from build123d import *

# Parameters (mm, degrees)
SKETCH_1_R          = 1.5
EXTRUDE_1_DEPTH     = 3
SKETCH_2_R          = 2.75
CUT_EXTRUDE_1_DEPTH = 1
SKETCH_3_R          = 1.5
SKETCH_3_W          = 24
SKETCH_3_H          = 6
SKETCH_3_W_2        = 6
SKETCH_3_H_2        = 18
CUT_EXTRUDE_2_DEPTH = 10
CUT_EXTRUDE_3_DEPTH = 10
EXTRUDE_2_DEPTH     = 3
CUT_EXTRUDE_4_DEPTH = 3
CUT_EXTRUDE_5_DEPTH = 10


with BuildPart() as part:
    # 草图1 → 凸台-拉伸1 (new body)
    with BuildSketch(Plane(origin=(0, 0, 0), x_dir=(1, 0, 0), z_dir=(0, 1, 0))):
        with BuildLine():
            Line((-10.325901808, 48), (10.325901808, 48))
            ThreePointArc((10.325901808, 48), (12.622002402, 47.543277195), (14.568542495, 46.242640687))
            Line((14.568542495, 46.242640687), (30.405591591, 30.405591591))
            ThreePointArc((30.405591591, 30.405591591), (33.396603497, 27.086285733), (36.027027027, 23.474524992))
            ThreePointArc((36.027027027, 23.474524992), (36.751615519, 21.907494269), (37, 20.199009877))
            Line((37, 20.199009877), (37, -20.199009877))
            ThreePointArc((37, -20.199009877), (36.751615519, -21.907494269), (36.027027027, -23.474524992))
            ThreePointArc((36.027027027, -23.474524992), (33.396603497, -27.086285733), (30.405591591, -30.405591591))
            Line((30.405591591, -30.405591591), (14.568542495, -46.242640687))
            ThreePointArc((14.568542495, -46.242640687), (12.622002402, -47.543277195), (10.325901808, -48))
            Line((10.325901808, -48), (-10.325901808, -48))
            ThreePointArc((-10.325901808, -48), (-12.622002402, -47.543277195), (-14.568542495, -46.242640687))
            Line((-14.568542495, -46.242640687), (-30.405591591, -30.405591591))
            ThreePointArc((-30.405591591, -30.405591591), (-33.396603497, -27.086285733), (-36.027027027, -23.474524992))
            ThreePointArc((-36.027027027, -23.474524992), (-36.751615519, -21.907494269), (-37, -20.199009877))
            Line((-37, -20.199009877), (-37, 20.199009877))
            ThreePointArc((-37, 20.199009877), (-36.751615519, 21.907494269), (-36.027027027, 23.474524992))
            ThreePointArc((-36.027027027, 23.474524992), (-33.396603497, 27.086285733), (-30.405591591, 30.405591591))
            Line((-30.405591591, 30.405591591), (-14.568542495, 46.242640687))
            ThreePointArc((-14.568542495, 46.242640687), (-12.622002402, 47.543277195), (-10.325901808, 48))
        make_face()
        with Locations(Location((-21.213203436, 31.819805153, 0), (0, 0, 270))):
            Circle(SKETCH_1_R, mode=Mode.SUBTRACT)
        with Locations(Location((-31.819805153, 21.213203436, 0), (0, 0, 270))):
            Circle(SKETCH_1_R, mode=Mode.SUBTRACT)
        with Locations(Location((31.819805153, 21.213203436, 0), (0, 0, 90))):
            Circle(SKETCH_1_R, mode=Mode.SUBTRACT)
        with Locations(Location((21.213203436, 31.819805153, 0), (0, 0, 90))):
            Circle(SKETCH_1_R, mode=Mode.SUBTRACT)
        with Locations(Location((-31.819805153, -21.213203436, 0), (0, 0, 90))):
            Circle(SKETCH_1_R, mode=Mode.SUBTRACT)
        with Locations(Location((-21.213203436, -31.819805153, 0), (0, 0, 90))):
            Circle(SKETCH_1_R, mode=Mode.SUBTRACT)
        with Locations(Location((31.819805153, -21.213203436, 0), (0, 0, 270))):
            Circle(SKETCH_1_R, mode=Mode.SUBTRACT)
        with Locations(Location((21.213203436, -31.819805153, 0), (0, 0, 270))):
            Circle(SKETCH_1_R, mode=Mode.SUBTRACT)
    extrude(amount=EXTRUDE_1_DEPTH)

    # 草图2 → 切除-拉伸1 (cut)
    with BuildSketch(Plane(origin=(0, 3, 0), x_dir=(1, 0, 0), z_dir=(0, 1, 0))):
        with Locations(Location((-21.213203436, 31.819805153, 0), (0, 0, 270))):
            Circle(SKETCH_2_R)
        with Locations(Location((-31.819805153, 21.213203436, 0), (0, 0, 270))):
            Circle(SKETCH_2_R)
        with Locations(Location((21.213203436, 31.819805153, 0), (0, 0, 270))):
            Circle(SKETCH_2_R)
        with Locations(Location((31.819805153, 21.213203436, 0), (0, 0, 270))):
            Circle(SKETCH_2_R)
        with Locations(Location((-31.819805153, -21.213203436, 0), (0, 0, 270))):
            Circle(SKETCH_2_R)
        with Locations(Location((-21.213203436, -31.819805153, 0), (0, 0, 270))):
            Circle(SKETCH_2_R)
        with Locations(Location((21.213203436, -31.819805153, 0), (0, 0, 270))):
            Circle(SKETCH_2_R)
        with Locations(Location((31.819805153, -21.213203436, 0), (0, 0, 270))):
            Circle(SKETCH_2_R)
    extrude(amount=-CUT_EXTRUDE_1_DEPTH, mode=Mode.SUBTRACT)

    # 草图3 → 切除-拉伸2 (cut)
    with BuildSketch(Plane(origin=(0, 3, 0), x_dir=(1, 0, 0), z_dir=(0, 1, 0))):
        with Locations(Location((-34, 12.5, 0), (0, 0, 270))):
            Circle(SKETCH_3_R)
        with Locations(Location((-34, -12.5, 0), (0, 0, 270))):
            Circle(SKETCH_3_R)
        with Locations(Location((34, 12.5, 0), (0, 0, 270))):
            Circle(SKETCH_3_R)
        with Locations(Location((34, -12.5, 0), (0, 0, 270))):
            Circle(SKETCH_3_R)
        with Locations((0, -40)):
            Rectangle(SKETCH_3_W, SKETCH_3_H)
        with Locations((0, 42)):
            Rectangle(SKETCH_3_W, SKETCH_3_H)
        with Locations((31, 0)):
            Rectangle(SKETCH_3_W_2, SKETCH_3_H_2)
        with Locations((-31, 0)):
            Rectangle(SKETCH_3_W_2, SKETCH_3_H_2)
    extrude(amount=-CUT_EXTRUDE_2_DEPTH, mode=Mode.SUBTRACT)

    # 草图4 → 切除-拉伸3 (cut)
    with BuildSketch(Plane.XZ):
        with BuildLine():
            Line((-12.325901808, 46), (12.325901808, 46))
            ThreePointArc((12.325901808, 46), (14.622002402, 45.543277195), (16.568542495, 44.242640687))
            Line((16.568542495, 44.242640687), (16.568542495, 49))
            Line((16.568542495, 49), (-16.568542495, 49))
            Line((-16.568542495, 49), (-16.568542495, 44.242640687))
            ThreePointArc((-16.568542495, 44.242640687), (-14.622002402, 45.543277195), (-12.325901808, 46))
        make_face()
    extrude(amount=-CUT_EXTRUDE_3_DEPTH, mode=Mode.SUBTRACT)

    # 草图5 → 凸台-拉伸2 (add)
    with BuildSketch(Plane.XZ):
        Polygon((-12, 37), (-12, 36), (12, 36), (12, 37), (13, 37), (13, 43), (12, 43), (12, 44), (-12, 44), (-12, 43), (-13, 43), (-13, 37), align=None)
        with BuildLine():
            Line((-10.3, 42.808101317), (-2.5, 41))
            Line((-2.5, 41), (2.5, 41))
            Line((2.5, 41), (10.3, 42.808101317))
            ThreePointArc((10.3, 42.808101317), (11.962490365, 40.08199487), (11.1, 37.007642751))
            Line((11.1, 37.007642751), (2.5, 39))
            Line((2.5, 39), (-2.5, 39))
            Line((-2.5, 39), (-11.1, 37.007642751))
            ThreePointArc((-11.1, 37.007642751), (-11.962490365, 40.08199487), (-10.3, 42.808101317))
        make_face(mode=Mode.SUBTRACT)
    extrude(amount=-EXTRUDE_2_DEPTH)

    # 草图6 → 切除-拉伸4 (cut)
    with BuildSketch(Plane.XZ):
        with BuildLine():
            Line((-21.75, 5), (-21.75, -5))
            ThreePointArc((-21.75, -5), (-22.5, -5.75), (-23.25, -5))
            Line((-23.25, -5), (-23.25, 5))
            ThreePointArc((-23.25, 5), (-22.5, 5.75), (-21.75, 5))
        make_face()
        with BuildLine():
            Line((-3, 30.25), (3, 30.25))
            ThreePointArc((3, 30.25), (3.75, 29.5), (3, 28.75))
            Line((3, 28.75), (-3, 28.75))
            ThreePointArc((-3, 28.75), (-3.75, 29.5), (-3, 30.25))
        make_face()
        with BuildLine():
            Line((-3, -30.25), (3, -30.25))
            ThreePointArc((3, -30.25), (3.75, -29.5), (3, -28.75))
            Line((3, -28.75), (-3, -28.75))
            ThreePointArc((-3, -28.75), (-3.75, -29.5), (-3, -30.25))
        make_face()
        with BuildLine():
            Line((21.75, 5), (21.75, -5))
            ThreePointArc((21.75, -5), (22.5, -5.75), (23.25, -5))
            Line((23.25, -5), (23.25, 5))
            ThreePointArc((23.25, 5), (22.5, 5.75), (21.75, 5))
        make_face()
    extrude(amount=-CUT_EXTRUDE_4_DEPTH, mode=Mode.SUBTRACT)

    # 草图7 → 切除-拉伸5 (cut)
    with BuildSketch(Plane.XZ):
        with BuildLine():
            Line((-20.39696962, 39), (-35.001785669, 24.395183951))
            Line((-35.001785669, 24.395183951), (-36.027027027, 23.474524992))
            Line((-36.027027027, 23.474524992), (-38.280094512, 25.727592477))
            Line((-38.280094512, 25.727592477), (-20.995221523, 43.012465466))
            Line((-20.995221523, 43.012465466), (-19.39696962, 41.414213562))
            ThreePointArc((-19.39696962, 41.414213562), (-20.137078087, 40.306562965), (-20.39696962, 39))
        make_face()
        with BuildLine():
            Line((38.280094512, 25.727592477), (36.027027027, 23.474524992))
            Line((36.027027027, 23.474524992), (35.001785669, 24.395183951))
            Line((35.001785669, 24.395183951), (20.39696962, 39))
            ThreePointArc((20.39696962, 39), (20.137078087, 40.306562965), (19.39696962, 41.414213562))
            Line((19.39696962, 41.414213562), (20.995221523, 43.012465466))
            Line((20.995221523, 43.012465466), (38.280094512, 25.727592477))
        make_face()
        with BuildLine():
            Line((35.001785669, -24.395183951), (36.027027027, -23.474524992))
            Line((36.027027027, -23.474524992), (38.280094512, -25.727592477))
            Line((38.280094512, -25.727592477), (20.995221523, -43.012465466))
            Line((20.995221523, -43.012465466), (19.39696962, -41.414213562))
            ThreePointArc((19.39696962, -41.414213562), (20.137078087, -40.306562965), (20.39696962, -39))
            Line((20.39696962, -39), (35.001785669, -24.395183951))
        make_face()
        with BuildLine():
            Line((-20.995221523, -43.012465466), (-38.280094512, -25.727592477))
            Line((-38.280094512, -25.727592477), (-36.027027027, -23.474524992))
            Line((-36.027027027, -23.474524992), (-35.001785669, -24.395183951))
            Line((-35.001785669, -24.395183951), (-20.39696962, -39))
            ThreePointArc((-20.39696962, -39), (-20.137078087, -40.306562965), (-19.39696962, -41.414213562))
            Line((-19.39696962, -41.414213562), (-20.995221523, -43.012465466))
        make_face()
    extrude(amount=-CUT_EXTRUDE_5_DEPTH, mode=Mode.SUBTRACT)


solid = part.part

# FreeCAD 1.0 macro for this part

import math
import FreeCAD as App
import Part
import Sketcher

V = App.Vector
Q = App.Units.Quantity


def add_polygon(sketch, points):
    """Adds a closed chain of lines whose ends are joined by coincident constraints."""
    first, n = sketch.GeometryCount, len(points)
    for a, b in zip(points, points[1:] + points[:1]):
        sketch.addGeometry(Part.LineSegment(App.Vector(*a, 0), App.Vector(*b, 0)), False)
    for i in range(n):
        sketch.addConstraint(Sketcher.Constraint("Coincident", first + i, 2, first + (i + 1) % n, 1))

doc = App.newDocument("Part")
body = doc.addObject("PartDesign::Body", "Body")

# Sketch on XZ plane
sketch1 = doc.addObject("Sketcher::SketchObject", "Sketch")
body.addObject(sketch1)
sketch1.AttachmentSupport = (doc.XZ_Plane, [""])
sketch1.MapMode = "FlatFace"
sketch1.addGeometry([
    Part.LineSegment(V(10.325902, -48, 0), V(-10.325902, -48, 0)),  # 0
    Part.ArcOfCircle(Part.Circle(V(-10.325902, -42, 0), V(0, 0, 1), 6), math.radians(-135), math.radians(-90)),  # 1
    Part.LineSegment(V(-14.568542, -46.242641, 0), V(-30.405592, -30.405592, 0)),  # 2
    Part.ArcOfCircle(Part.Circle(V(0, 0, 0), V(0, 0, 1), 43), math.radians(-146.9125), math.radians(-135)),  # 3
    Part.ArcOfCircle(Part.Circle(V(-31, -20.19901, 0), V(0, 0, 1), 6), math.radians(-180), math.radians(-146.9125)),  # 4
    Part.LineSegment(V(-37, -20.19901, 0), V(-37, 20.19901, 0)),  # 5
    Part.ArcOfCircle(Part.Circle(V(-31, 20.19901, 0), V(0, 0, 1), 6), math.radians(146.9125), math.radians(180)),  # 6
    Part.ArcOfCircle(Part.Circle(V(0, 0, 0), V(0, 0, 1), 43), math.radians(135), math.radians(146.9125)),  # 7
    Part.LineSegment(V(-30.405592, 30.405592, 0), V(-14.568542, 46.242641, 0)),  # 8
    Part.ArcOfCircle(Part.Circle(V(-10.325902, 42, 0), V(0, 0, 1), 6), math.radians(90), math.radians(135)),  # 9
    Part.LineSegment(V(-10.325902, 48, 0), V(10.325902, 48, 0)),  # 10
    Part.ArcOfCircle(Part.Circle(V(10.325902, 42, 0), V(0, 0, 1), 6), math.radians(45), math.radians(90)),  # 11
    Part.LineSegment(V(14.568542, 46.242641, 0), V(30.405592, 30.405592, 0)),  # 12
    Part.ArcOfCircle(Part.Circle(V(0, 0, 0), V(0, 0, 1), 43), math.radians(33.0875), math.radians(45)),  # 13
    Part.ArcOfCircle(Part.Circle(V(31, 20.19901, 0), V(0, 0, 1), 6), math.radians(0), math.radians(33.0875)),  # 14
    Part.LineSegment(V(37, 20.19901, 0), V(37, -20.19901, 0)),  # 15
    Part.ArcOfCircle(Part.Circle(V(31, -20.19901, 0), V(0, 0, 1), 6), math.radians(-33.0875), math.radians(0)),  # 16
    Part.ArcOfCircle(Part.Circle(V(0, 0, 0), V(0, 0, 1), 43), math.radians(-45), math.radians(-33.0875)),  # 17
    Part.LineSegment(V(30.405592, -30.405592, 0), V(14.568542, -46.242641, 0)),  # 18
    Part.ArcOfCircle(Part.Circle(V(10.325902, -42, 0), V(0, 0, 1), 6), math.radians(-90), math.radians(-45)),  # 19
    Part.Circle(V(21.213203, 31.819805, 0), V(0, 0, 1), 1.5),  # 20
    Part.Circle(V(31.819805, 21.213203, 0), V(0, 0, 1), 1.5),  # 21
    Part.Circle(V(-21.213203, 31.819805, 0), V(0, 0, 1), 1.5),  # 22
    Part.Circle(V(-31.819805, 21.213203, 0), V(0, 0, 1), 1.5),  # 23
    Part.Circle(V(31.819805, -21.213203, 0), V(0, 0, 1), 1.5),  # 24
    Part.Circle(V(21.213203, -31.819805, 0), V(0, 0, 1), 1.5),  # 25
    Part.Circle(V(-31.819805, -21.213203, 0), V(0, 0, 1), 1.5),  # 26
    Part.Circle(V(-21.213203, -31.819805, 0), V(0, 0, 1), 1.5),  # 27
], False)
sketch1.addConstraint([
    Sketcher.Constraint("Tangent", 0, 2, 1, 2),
    Sketcher.Constraint("Tangent", 1, 1, 2, 1),
    Sketcher.Constraint("Tangent", 2, 2, 3, 2),
    Sketcher.Constraint("Tangent", 3, 1, 4, 2),
    Sketcher.Constraint("Tangent", 4, 1, 5, 1),
    Sketcher.Constraint("Tangent", 5, 2, 6, 2),
    Sketcher.Constraint("Tangent", 6, 1, 7, 2),
    Sketcher.Constraint("Tangent", 7, 1, 8, 1),
    Sketcher.Constraint("Tangent", 8, 2, 9, 2),
    Sketcher.Constraint("Tangent", 9, 1, 10, 1),
    Sketcher.Constraint("Tangent", 10, 2, 11, 2),
    Sketcher.Constraint("Tangent", 11, 1, 12, 1),
    Sketcher.Constraint("Tangent", 12, 2, 13, 2),
    Sketcher.Constraint("Tangent", 13, 1, 14, 2),
    Sketcher.Constraint("Tangent", 14, 1, 15, 1),
    Sketcher.Constraint("Tangent", 15, 2, 16, 2),
    Sketcher.Constraint("Tangent", 16, 1, 17, 2),
    Sketcher.Constraint("Tangent", 17, 1, 18, 1),
    Sketcher.Constraint("Tangent", 18, 2, 19, 2),
    Sketcher.Constraint("Tangent", 19, 1, 0, 1),
    Sketcher.Constraint("Horizontal", 0),
    Sketcher.Constraint("Vertical", 5),
    Sketcher.Constraint("Horizontal", 10),
    Sketcher.Constraint("Vertical", 15),
    Sketcher.Constraint("Coincident", 3, 3, -1, 1),
    Sketcher.Constraint("Coincident", 7, 3, -1, 1),
    Sketcher.Constraint("Coincident", 13, 3, -1, 1),
    Sketcher.Constraint("Coincident", 17, 3, -1, 1),
    Sketcher.Constraint("Equal", 1, 4),
    Sketcher.Constraint("Equal", 4, 6),
    Sketcher.Constraint("Equal", 3, 7),
    Sketcher.Constraint("Equal", 6, 9),
    Sketcher.Constraint("Equal", 9, 11),
    Sketcher.Constraint("Equal", 7, 13),
    Sketcher.Constraint("Equal", 11, 14),
    Sketcher.Constraint("Equal", 14, 16),
    Sketcher.Constraint("Equal", 13, 17),
    Sketcher.Constraint("Equal", 16, 19),
    Sketcher.Constraint("Equal", 20, 21),
    Sketcher.Constraint("Equal", 21, 22),
    Sketcher.Constraint("Equal", 22, 23),
    Sketcher.Constraint("Equal", 23, 24),
    Sketcher.Constraint("Equal", 24, 25),
    Sketcher.Constraint("Equal", 25, 26),
    Sketcher.Constraint("Equal", 26, 27),
    Sketcher.Constraint("Symmetric", 1, 3, 11, 3, -1, 1),
    Sketcher.Constraint("Symmetric", 23, 3, 24, 3, -1, 1),
    Sketcher.Constraint("Symmetric", 22, 3, 25, 3, -1, 1),
    Sketcher.Constraint("Symmetric", 21, 3, 26, 3, -1, 1),
    Sketcher.Constraint("Symmetric", 20, 3, 27, 3, -1, 1),
    Sketcher.Constraint("Symmetric", 20, 3, 22, 3, -2),
    Sketcher.Constraint("Symmetric", 21, 3, 23, 3, -2),
    Sketcher.Constraint("Perpendicular", 2, 8),
    Sketcher.Constraint("Perpendicular", 12, 18),
    Sketcher.Constraint("Horizontal", 6, 3, 14, 3),
    Sketcher.Constraint("Horizontal", 8, 2, 11, 1),
    Sketcher.Constraint("Diameter", 20, Q("3 mm")),
    Sketcher.Constraint("Radius", 1, Q("6 mm")),
    Sketcher.Constraint("Radius", 3, Q("43 mm")),
    Sketcher.Constraint("DistanceY", 1, 3, -1, 1, Q("42 mm")),
    Sketcher.Constraint("DistanceX", 4, 3, -1, 1, Q("31 mm")),
    Sketcher.Constraint("DistanceX", 11, 3, 20, 3, Q("10.887302 mm")),
    Sketcher.Constraint("DistanceX", 20, 3, 21, 3, Q("10.606602 mm")),
    Sketcher.Constraint("DistanceY", 21, 3, 20, 3, Q("10.606602 mm")),
    Sketcher.Constraint("DistanceY", 2, 2, 26, 3, Q("9.192388 mm")),
])
pad1 = doc.addObject("PartDesign::Pad", "Pad")
body.addObject(pad1)
pad1.Profile = sketch1
pad1.Length = 3
pad1.Reversed = True

# Sketch on XZ plane
sketch2 = doc.addObject("Sketcher::SketchObject", "Sketch001")
body.addObject(sketch2)
sketch2.AttachmentSupport = (doc.XZ_Plane, [""])
sketch2.MapMode = "FlatFace"
sketch2.AttachmentOffset = App.Placement(V(0, 0, -3), App.Rotation())
sketch2.addGeometry([
    Part.Circle(V(-21.213203, -31.819805, 0), V(0, 0, 1), 2.75),  # 0
    Part.Circle(V(-31.819805, -21.213203, 0), V(0, 0, 1), 2.75),  # 1
    Part.Circle(V(21.213203, -31.819805, 0), V(0, 0, 1), 2.75),  # 2
    Part.Circle(V(31.819805, -21.213203, 0), V(0, 0, 1), 2.75),  # 3
    Part.Circle(V(-31.819805, 21.213203, 0), V(0, 0, 1), 2.75),  # 4
    Part.Circle(V(-21.213203, 31.819805, 0), V(0, 0, 1), 2.75),  # 5
    Part.Circle(V(21.213203, 31.819805, 0), V(0, 0, 1), 2.75),  # 6
    Part.Circle(V(31.819805, 21.213203, 0), V(0, 0, 1), 2.75),  # 7
], False)
sketch2.addConstraint([
    Sketcher.Constraint("Equal", 0, 1),
    Sketcher.Constraint("Equal", 1, 2),
    Sketcher.Constraint("Equal", 2, 3),
    Sketcher.Constraint("Equal", 3, 4),
    Sketcher.Constraint("Equal", 4, 5),
    Sketcher.Constraint("Equal", 5, 6),
    Sketcher.Constraint("Equal", 6, 7),
    Sketcher.Constraint("Symmetric", 3, 3, 4, 3, -1, 1),
    Sketcher.Constraint("Symmetric", 2, 3, 5, 3, -1, 1),
    Sketcher.Constraint("Symmetric", 0, 3, 6, 3, -1, 1),
    Sketcher.Constraint("Symmetric", 1, 3, 7, 3, -1, 1),
    Sketcher.Constraint("Symmetric", 0, 3, 2, 3, -2),
    Sketcher.Constraint("Symmetric", 1, 3, 3, 3, -2),
    Sketcher.Constraint("Diameter", 0, Q("5.5 mm")),
    Sketcher.Constraint("DistanceX", 1, 3, 0, 3, Q("10.606602 mm")),
    Sketcher.Constraint("DistanceY", 0, 3, 1, 3, Q("10.606602 mm")),
    Sketcher.Constraint("DistanceX", 1, 3, 2, 3, Q("53.033009 mm")),
    Sketcher.Constraint("DistanceY", 0, 3, 4, 3, Q("53.033009 mm")),
])
pocket1 = doc.addObject("PartDesign::Pocket", "Pocket")
body.addObject(pocket1)
pocket1.Profile = sketch2
pocket1.Length = 1
pocket1.Reversed = True

# Sketch on XZ plane
sketch3 = doc.addObject("Sketcher::SketchObject", "Sketch002")
body.addObject(sketch3)
sketch3.AttachmentSupport = (doc.XZ_Plane, [""])
sketch3.MapMode = "FlatFace"
sketch3.AttachmentOffset = App.Placement(V(0, 0, -3), App.Rotation())
sketch3.addGeometry(Part.Circle(V(-34, -12.5, 0), V(0, 0, 1), 1.5), False)  # 0
sketch3.addGeometry(Part.Circle(V(-34, 12.5, 0), V(0, 0, 1), 1.5), False)  # 1
sketch3.addGeometry(Part.Circle(V(34, -12.5, 0), V(0, 0, 1), 1.5), False)  # 2
sketch3.addGeometry(Part.Circle(V(34, 12.5, 0), V(0, 0, 1), 1.5), False)  # 3
add_polygon(sketch3, [(-12, 37), (-12, 43), (12, 43), (12, 37)])  # lines 4-7
add_polygon(sketch3, [(-12, -45), (-12, -39), (12, -39), (12, -45)])  # lines 8-11
add_polygon(sketch3, [(28, -9), (28, 9), (34, 9), (34, -9)])  # lines 12-15
add_polygon(sketch3, [(-34, -9), (-34, 9), (-28, 9), (-28, -9)])  # lines 16-19
sketch3.addConstraint([
    Sketcher.Constraint("Vertical", 4),
    Sketcher.Constraint("Horizontal", 5),
    Sketcher.Constraint("Vertical", 6),
    Sketcher.Constraint("Horizontal", 7),
    Sketcher.Constraint("Vertical", 8),
    Sketcher.Constraint("Horizontal", 9),
    Sketcher.Constraint("Vertical", 10),
    Sketcher.Constraint("Horizontal", 11),
    Sketcher.Constraint("Vertical", 12),
    Sketcher.Constraint("Horizontal", 13),
    Sketcher.Constraint("Vertical", 14),
    Sketcher.Constraint("Horizontal", 15),
    Sketcher.Constraint("Vertical", 16),
    Sketcher.Constraint("Horizontal", 17),
    Sketcher.Constraint("Vertical", 18),
    Sketcher.Constraint("Horizontal", 19),
    Sketcher.Constraint("Equal", 0, 1),
    Sketcher.Constraint("Equal", 1, 2),
    Sketcher.Constraint("Equal", 2, 3),
    Sketcher.Constraint("Symmetric", 1, 3, 2, 3, -1, 1),
    Sketcher.Constraint("Symmetric", 0, 3, 3, 3, -1, 1),
    Sketcher.Constraint("Symmetric", 14, 2, 16, 2, -1, 1),
    Sketcher.Constraint("Symmetric", 12, 2, 18, 2, -1, 1),
    Sketcher.Constraint("Symmetric", 0, 3, 2, 3, -2),
    Sketcher.Constraint("Horizontal", 13, 2, 16, 2),
    Sketcher.Constraint("Vertical", 7, 2, 8, 2),
    Sketcher.Constraint("Vertical", 6, 2, 9, 2),
    Sketcher.Constraint("Vertical", 3, 3, 13, 2),
    Sketcher.Constraint("Equal", 19, 4),
    Sketcher.Constraint("Equal", 6, 8),
    Sketcher.Constraint("Diameter", 0, Q("3 mm")),
    Sketcher.Constraint("DistanceX", 5, 1, 5, 2, Q("24 mm")),
    Sketcher.Constraint("DistanceX", 13, 1, 13, 2, Q("6 mm")),
    Sketcher.Constraint("DistanceY", 12, 1, 12, 2, Q("18 mm")),
    Sketcher.Constraint("DistanceX", 0, 3, -1, 1, Q("34 mm")),
    Sketcher.Constraint("DistanceX", 4, 2, -1, 1, Q("12 mm")),
    Sketcher.Constraint("DistanceY", -1, 1, 4, 2, Q("43 mm")),
    Sketcher.Constraint("DistanceY", 8, 2, -1, 1, Q("39 mm")),
    Sketcher.Constraint("DistanceY", 0, 3, 1, 3, Q("25 mm")),
])
pocket2 = doc.addObject("PartDesign::Pocket", "Pocket001")
body.addObject(pocket2)
pocket2.Profile = sketch3
pocket2.Length = 10
pocket2.Reversed = True

# Sketch on XZ plane
sketch4 = doc.addObject("Sketcher::SketchObject", "Sketch003")
body.addObject(sketch4)
sketch4.AttachmentSupport = (doc.XZ_Plane, [""])
sketch4.MapMode = "FlatFace"
sketch4.addGeometry([
    Part.LineSegment(V(-12.325902, 46, 0), V(12.325902, 46, 0)),  # 0
    Part.ArcOfCircle(Part.Circle(V(12.325902, 40, 0), V(0, 0, 1), 6), math.radians(45), math.radians(90)),  # 1
    Part.LineSegment(V(16.568542, 44.242641, 0), V(16.568542, 49, 0)),  # 2
    Part.LineSegment(V(16.568542, 49, 0), V(-16.568542, 49, 0)),  # 3
    Part.LineSegment(V(-16.568542, 49, 0), V(-16.568542, 44.242641, 0)),  # 4
    Part.ArcOfCircle(Part.Circle(V(-12.325902, 40, 0), V(0, 0, 1), 6), math.radians(90), math.radians(135)),  # 5
], False)
sketch4.addConstraint([
    Sketcher.Constraint("Tangent", 0, 2, 1, 2),
    Sketcher.Constraint("Coincident", 1, 1, 2, 1),
    Sketcher.Constraint("Coincident", 2, 2, 3, 1),
    Sketcher.Constraint("Coincident", 3, 2, 4, 1),
    Sketcher.Constraint("Coincident", 4, 2, 5, 2),
    Sketcher.Constraint("Tangent", 5, 1, 0, 1),
    Sketcher.Constraint("Horizontal", 0),
    Sketcher.Constraint("Vertical", 2),
    Sketcher.Constraint("Horizontal", 3),
    Sketcher.Constraint("Vertical", 4),
    Sketcher.Constraint("Equal", 1, 5),
    Sketcher.Constraint("Symmetric", 1, 1, 4, 2, -2),
    Sketcher.Constraint("Radius", 1, Q("6 mm")),
    Sketcher.Constraint("DistanceY", -1, 1, 1, 3, Q("40 mm")),
    Sketcher.Constraint("DistanceY", -1, 1, 2, 2, Q("49 mm")),
    Sketcher.Constraint("DistanceY", 2, 1, 2, 2, Q("4.757359 mm")),
    Sketcher.Constraint("DistanceX", -1, 1, 1, 3, Q("12.325902 mm")),
])
pocket3 = doc.addObject("PartDesign::Pocket", "Pocket002")
body.addObject(pocket3)
pocket3.Profile = sketch4
pocket3.Length = 10

# Sketch on XZ plane
sketch5 = doc.addObject("Sketcher::SketchObject", "Sketch004")
body.addObject(sketch5)
sketch5.AttachmentSupport = (doc.XZ_Plane, [""])
sketch5.MapMode = "FlatFace"
add_polygon(sketch5, [(-12, 37), (-12, 36), (12, 36), (12, 37), (13, 37), (13, 43), (12, 43), (12, 44), (-12, 44), (-12, 43), (-13, 43), (-13, 37)])  # lines 0-11
sketch5.addGeometry(Part.ArcOfCircle(Part.Circle(V(-8, 39.535488, 0), V(0, 0, 1), 4), math.radians(125.099632), math.radians(219.194967)), False)  # 12
sketch5.addGeometry(Part.LineSegment(V(-10.3, 42.808101, 0), V(-2.5, 41, 0)), False)  # 13
sketch5.addGeometry(Part.LineSegment(V(-2.5, 41, 0), V(2.5, 41, 0)), False)  # 14
sketch5.addGeometry(Part.LineSegment(V(2.5, 41, 0), V(10.3, 42.808101, 0)), False)  # 15
sketch5.addGeometry(Part.ArcOfCircle(Part.Circle(V(8, 39.535488, 0), V(0, 0, 1), 4), math.radians(-39.194967), math.radians(54.900368)), False)  # 16
sketch5.addGeometry(Part.LineSegment(V(11.1, 37.007643, 0), V(2.5, 39, 0)), False)  # 17
sketch5.addGeometry(Part.LineSegment(V(2.5, 39, 0), V(-2.5, 39, 0)), False)  # 18
sketch5.addGeometry(Part.LineSegment(V(-2.5, 39, 0), V(-11.1, 37.007643, 0)), False)  # 19
sketch5.addConstraint([
    Sketcher.Constraint("Coincident", 12, 1, 13, 1),
    Sketcher.Constraint("Coincident", 13, 2, 14, 1),
    Sketcher.Constraint("Coincident", 14, 2, 15, 1),
    Sketcher.Constraint("Coincident", 15, 2, 16, 2),
    Sketcher.Constraint("Coincident", 16, 1, 17, 1),
    Sketcher.Constraint("Coincident", 17, 2, 18, 1),
    Sketcher.Constraint("Coincident", 18, 2, 19, 1),
    Sketcher.Constraint("Coincident", 19, 2, 12, 2),
    Sketcher.Constraint("Vertical", 0),
    Sketcher.Constraint("Horizontal", 1),
    Sketcher.Constraint("Vertical", 2),
    Sketcher.Constraint("Horizontal", 3),
    Sketcher.Constraint("Vertical", 4),
    Sketcher.Constraint("Horizontal", 5),
    Sketcher.Constraint("Vertical", 6),
    Sketcher.Constraint("Horizontal", 7),
    Sketcher.Constraint("Vertical", 8),
    Sketcher.Constraint("Horizontal", 9),
    Sketcher.Constraint("Vertical", 10),
    Sketcher.Constraint("Horizontal", 11),
    Sketcher.Constraint("Horizontal", 14),
    Sketcher.Constraint("Horizontal", 18),
    Sketcher.Constraint("Equal", 12, 16),
    Sketcher.Constraint("Symmetric", 12, 3, 16, 3, -2),
    Sketcher.Constraint("Symmetric", 5, 2, 8, 2, -2),
    Sketcher.Constraint("Symmetric", 3, 2, 10, 2, -2),
    Sketcher.Constraint("Horizontal", 12, 1, 15, 2),
    Sketcher.Constraint("Horizontal", 16, 1, 19, 2),
    Sketcher.Constraint("Vertical", 2, 2, 5, 2),
    Sketcher.Constraint("Vertical", 0, 2, 7, 2),
    Sketcher.Constraint("Vertical", 14, 2, 17, 2),
    Sketcher.Constraint("Vertical", 13, 2, 18, 2),
    Sketcher.Constraint("Equal", 11, 0),
    Sketcher.Constraint("Equal", 2, 6),
    Sketcher.Constraint("Equal", 13, 15),
    Sketcher.Constraint("Radius", 12, Q("4 mm")),
    Sketcher.Constraint("DistanceX", 1, 1, 1, 2, Q("24 mm")),
    Sketcher.Constraint("DistanceX", 3, 1, 3, 2, Q("1 mm")),
    Sketcher.Constraint("DistanceX", 14, 1, 14, 2, Q("5 mm")),
    Sketcher.Constraint("DistanceY", 4, 1, 4, 2, Q("6 mm")),
    Sketcher.Constraint("DistanceX", 12, 3, -1, 1, Q("8 mm")),
    Sketcher.Constraint("DistanceY", -1, 1, 0, 2, Q("36 mm")),
    Sketcher.Constraint("DistanceY", -1, 1, 13, 2, Q("41 mm")),
    Sketcher.Constraint("DistanceY", -1, 1, 17, 2, Q("39 mm")),
    Sketcher.Constraint("DistanceX", 12, 1, -1, 1, Q("10.3 mm")),
    Sketcher.Constraint("DistanceX", -1, 1, 16, 1, Q("11.1 mm")),
    Sketcher.Constraint("DistanceY", -1, 1, 12, 1, Q("42.808101 mm")),
])
pad2 = doc.addObject("PartDesign::Pad", "Pad001")
body.addObject(pad2)
pad2.Profile = sketch5
pad2.Length = 3
pad2.Reversed = True

# Sketch on XZ plane
sketch6 = doc.addObject("Sketcher::SketchObject", "Sketch005")
body.addObject(sketch6)
sketch6.AttachmentSupport = (doc.XZ_Plane, [""])
sketch6.MapMode = "FlatFace"
sketch6.addGeometry([
    Part.LineSegment(V(-21.75, -5, 0), V(-21.75, 5, 0)),  # 0
    Part.ArcOfCircle(Part.Circle(V(-22.5, 5, 0), V(0, 0, 1), 0.75), math.radians(0), math.radians(180)),  # 1
    Part.LineSegment(V(-23.25, 5, 0), V(-23.25, -5, 0)),  # 2
    Part.ArcOfCircle(Part.Circle(V(-22.5, -5, 0), V(0, 0, 1), 0.75), math.radians(180), math.radians(360)),  # 3
    Part.LineSegment(V(3, 30.25, 0), V(-3, 30.25, 0)),  # 4
    Part.ArcOfCircle(Part.Circle(V(-3, 29.5, 0), V(0, 0, 1), 0.75), math.radians(90), math.radians(270)),  # 5
    Part.LineSegment(V(-3, 28.75, 0), V(3, 28.75, 0)),  # 6
    Part.ArcOfCircle(Part.Circle(V(3, 29.5, 0), V(0, 0, 1), 0.75), math.radians(-90), math.radians(90)),  # 7
    Part.LineSegment(V(-3, -30.25, 0), V(3, -30.25, 0)),  # 8
    Part.ArcOfCircle(Part.Circle(V(3, -29.5, 0), V(0, 0, 1), 0.75), math.radians(-90), math.radians(90)),  # 9
    Part.LineSegment(V(3, -28.75, 0), V(-3, -28.75, 0)),  # 10
    Part.ArcOfCircle(Part.Circle(V(-3, -29.5, 0), V(0, 0, 1), 0.75), math.radians(90), math.radians(270)),  # 11
    Part.LineSegment(V(21.75, 5, 0), V(21.75, -5, 0)),  # 12
    Part.ArcOfCircle(Part.Circle(V(22.5, -5, 0), V(0, 0, 1), 0.75), math.radians(180), math.radians(360)),  # 13
    Part.LineSegment(V(23.25, -5, 0), V(23.25, 5, 0)),  # 14
    Part.ArcOfCircle(Part.Circle(V(22.5, 5, 0), V(0, 0, 1), 0.75), math.radians(0), math.radians(180)),  # 15
], False)
sketch6.addConstraint([
    Sketcher.Constraint("Tangent", 0, 2, 1, 1),
    Sketcher.Constraint("Tangent", 1, 2, 2, 1),
    Sketcher.Constraint("Tangent", 2, 2, 3, 1),
    Sketcher.Constraint("Tangent", 3, 2, 0, 1),
    Sketcher.Constraint("Tangent", 4, 2, 5, 1),
    Sketcher.Constraint("Tangent", 5, 2, 6, 1),
    Sketcher.Constraint("Tangent", 6, 2, 7, 1),
    Sketcher.Constraint("Tangent", 7, 2, 4, 1),
    Sketcher.Constraint("Tangent", 8, 2, 9, 1),
    Sketcher.Constraint("Tangent", 9, 2, 10, 1),
    Sketcher.Constraint("Tangent", 10, 2, 11, 1),
    Sketcher.Constraint("Tangent", 11, 2, 8, 1),
    Sketcher.Constraint("Tangent", 12, 2, 13, 1),
    Sketcher.Constraint("Tangent", 13, 2, 14, 1),
    Sketcher.Constraint("Tangent", 14, 2, 15, 1),
    Sketcher.Constraint("Tangent", 15, 2, 12, 1),
    Sketcher.Constraint("Vertical", 0),
    Sketcher.Constraint("Vertical", 2),
    Sketcher.Constraint("Horizontal", 4),
    Sketcher.Constraint("Horizontal", 6),
    Sketcher.Constraint("Horizontal", 8),
    Sketcher.Constraint("Horizontal", 10),
    Sketcher.Constraint("Vertical", 12),
    Sketcher.Constraint("Vertical", 14),
    Sketcher.Constraint("Equal", 3, 5),
    Sketcher.Constraint("Equal", 7, 9),
    Sketcher.Constraint("Equal", 11, 13),
    Sketcher.Constraint("Symmetric", 5, 3, 9, 3, -1, 1),
    Sketcher.Constraint("Symmetric", 1, 3, 13, 3, -1, 1),
    Sketcher.Constraint("Horizontal", 3, 3, 13, 3),
    Sketcher.Constraint("Horizontal", 1, 3, 15, 3),
    Sketcher.Constraint("Vertical", 7, 3, 9, 3),
    Sketcher.Constraint("Vertical", 5, 3, 11, 3),
    Sketcher.Constraint("DistanceX", 4, 2, 4, 1, Q("6 mm")),
    Sketcher.Constraint("DistanceY", 0, 1, 0, 2, Q("10 mm")),
    Sketcher.Constraint("Radius", 1, Q("0.75 mm")),
    Sketcher.Constraint("DistanceY", 9, 3, 7, 3, Q("59 mm")),
    Sketcher.Constraint("DistanceX", 3, 3, 13, 3, Q("45 mm")),
])
pocket4 = doc.addObject("PartDesign::Pocket", "Pocket003")
body.addObject(pocket4)
pocket4.Profile = sketch6
pocket4.Length = 3

# Sketch on XZ plane
sketch7 = doc.addObject("Sketcher::SketchObject", "Sketch006")
body.addObject(sketch7)
sketch7.AttachmentSupport = (doc.XZ_Plane, [""])
sketch7.MapMode = "FlatFace"
sketch7.addGeometry([
    Part.LineSegment(V(-35.001786, 24.395184, 0), V(-20.39697, 39, 0)),  # 0
    Part.ArcOfCircle(Part.Circle(V(-16.982756, 39, 0), V(0, 0, 1), 3.414214), math.radians(135), math.radians(180)),  # 1
    Part.LineSegment(V(-19.39697, 41.414214, 0), V(-20.995222, 43.012465, 0)),  # 2
    Part.LineSegment(V(-20.995222, 43.012465, 0), V(-38.280095, 25.727592, 0)),  # 3
    Part.LineSegment(V(-38.280095, 25.727592, 0), V(-36.027027, 23.474525, 0)),  # 4
    Part.LineSegment(V(-36.027027, 23.474525, 0), V(-35.001786, 24.395184, 0)),  # 5
    Part.LineSegment(V(36.027027, 23.474525, 0), V(38.280095, 25.727592, 0)),  # 6
    Part.LineSegment(V(38.280095, 25.727592, 0), V(20.995222, 43.012465, 0)),  # 7
    Part.LineSegment(V(20.995222, 43.012465, 0), V(19.39697, 41.414214, 0)),  # 8
    Part.ArcOfCircle(Part.Circle(V(16.982756, 39, 0), V(0, 0, 1), 3.414214), math.radians(0), math.radians(45)),  # 9
    Part.LineSegment(V(20.39697, 39, 0), V(35.001786, 24.395184, 0)),  # 10
    Part.LineSegment(V(35.001786, 24.395184, 0), V(36.027027, 23.474525, 0)),  # 11
    Part.LineSegment(V(36.027027, -23.474525, 0), V(35.001786, -24.395184, 0)),  # 12
    Part.LineSegment(V(35.001786, -24.395184, 0), V(20.39697, -39, 0)),  # 13
    Part.ArcOfCircle(Part.Circle(V(16.982756, -39, 0), V(0, 0, 1), 3.414214), math.radians(-45), math.radians(0)),  # 14
    Part.LineSegment(V(19.39697, -41.414214, 0), V(20.995222, -43.012465, 0)),  # 15
    Part.LineSegment(V(20.995222, -43.012465, 0), V(38.280095, -25.727592, 0)),  # 16
    Part.LineSegment(V(38.280095, -25.727592, 0), V(36.027027, -23.474525, 0)),  # 17
    Part.LineSegment(V(-38.280095, -25.727592, 0), V(-20.995222, -43.012465, 0)),  # 18
    Part.LineSegment(V(-20.995222, -43.012465, 0), V(-19.39697, -41.414214, 0)),  # 19
    Part.ArcOfCircle(Part.Circle(V(-16.982756, -39, 0), V(0, 0, 1), 3.414214), math.radians(-180), math.radians(-135)),  # 20
    Part.LineSegment(V(-20.39697, -39, 0), V(-35.001786, -24.395184, 0)),  # 21
    Part.LineSegment(V(-35.001786, -24.395184, 0), V(-36.027027, -23.474525, 0)),  # 22
    Part.LineSegment(V(-36.027027, -23.474525, 0), V(-38.280095, -25.727592, 0)),  # 23
], False)
sketch7.addConstraint([
    Sketcher.Constraint("Coincident", 0, 2, 1, 2),
    Sketcher.Constraint("Coincident", 1, 1, 2, 1),
    Sketcher.Constraint("Coincident", 2, 2, 3, 1),
    Sketcher.Constraint("Coincident", 3, 2, 4, 1),
    Sketcher.Constraint("Coincident", 4, 2, 5, 1),
    Sketcher.Constraint("Coincident", 5, 2, 0, 1),
    Sketcher.Constraint("Coincident", 6, 2, 7, 1),
    Sketcher.Constraint("Coincident", 7, 2, 8, 1),
    Sketcher.Constraint("Coincident", 8, 2, 9, 2),
    Sketcher.Constraint("Coincident", 9, 1, 10, 1),
    Sketcher.Constraint("Coincident", 10, 2, 11, 1),
    Sketcher.Constraint("Coincident", 11, 2, 6, 1),
    Sketcher.Constraint("Coincident", 12, 2, 13, 1),
    Sketcher.Constraint("Coincident", 13, 2, 14, 2),
    Sketcher.Constraint("Coincident", 14, 1, 15, 1),
    Sketcher.Constraint("Coincident", 15, 2, 16, 1),
    Sketcher.Constraint("Coincident", 16, 2, 17, 1),
    Sketcher.Constraint("Coincident", 17, 2, 12, 1),
    Sketcher.Constraint("Coincident", 18, 2, 19, 1),
    Sketcher.Constraint("Coincident", 19, 2, 20, 2),
    Sketcher.Constraint("Coincident", 20, 1, 21, 1),
    Sketcher.Constraint("Coincident", 21, 2, 22, 1),
    Sketcher.Constraint("Coincident", 22, 2, 23, 1),
    Sketcher.Constraint("Coincident", 23, 2, 18, 1),
    Sketcher.Constraint("Equal", 1, 9),
    Sketcher.Constraint("Equal", 9, 14),
    Sketcher.Constraint("Equal", 14, 20),
    Sketcher.Constraint("Symmetric", 1, 3, 14, 3, -1, 1),
    Sketcher.Constraint("Symmetric", 9, 3, 20, 3, -1, 1),
    Sketcher.Constraint("Symmetric", 5, 2, 12, 2, -1, 1),
    Sketcher.Constraint("Symmetric", 2, 2, 15, 2, -1, 1),
    Sketcher.Constraint("Symmetric", 3, 2, 16, 2, -1, 1),
    Sketcher.Constraint("Symmetric", 4, 2, 17, 2, -1, 1),
    Sketcher.Constraint("Symmetric", 7, 2, 18, 2, -1, 1),
    Sketcher.Constraint("Symmetric", 10, 2, 21, 2, -1, 1),
    Sketcher.Constraint("Symmetric", 11, 2, 22, 2, -1, 1),
    Sketcher.Constraint("Symmetric", 6, 2, 23, 2, -1, 1),
    Sketcher.Constraint("Symmetric", 1, 3, 9, 3, -2),
    Sketcher.Constraint("Symmetric", 3, 2, 6, 2, -2),
    Sketcher.Constraint("Symmetric", 2, 2, 7, 2, -2),
    Sketcher.Constraint("Symmetric", 5, 2, 10, 2, -2),
    Sketcher.Constraint("Symmetric", 4, 2, 11, 2, -2),
    Sketcher.Constraint("Perpendicular", 0, 2),
    Sketcher.Constraint("Perpendicular", 2, 3),
    Sketcher.Constraint("Perpendicular", 3, 4),
    Sketcher.Constraint("Perpendicular", 4, 6),
    Sketcher.Constraint("Perpendicular", 7, 8),
    Sketcher.Constraint("Perpendicular", 8, 10),
    Sketcher.Constraint("Perpendicular", 10, 13),
    Sketcher.Constraint("Perpendicular", 13, 15),
    Sketcher.Constraint("Perpendicular", 18, 19),
    Sketcher.Constraint("Perpendicular", 19, 21),
    Sketcher.Constraint("Horizontal", 9, 3, 0, 2),
    Sketcher.Constraint("DistanceY", -1, 1, 1, 3, Q("39 mm")),
    Sketcher.Constraint("DistanceX", 0, 2, 1, 1, Q("1 mm")),
    Sketcher.Constraint("Radius", 1, Q("3.414214 mm")),
    Sketcher.Constraint("Distance", 3, Q("24.444502 mm")),
    Sketcher.Constraint("Distance", 0, Q("20.654329 mm")),
    Sketcher.Constraint("Distance", 2, Q("2.26027 mm")),
    Sketcher.Constraint("Distance", 4, Q("3.186319 mm")),
    Sketcher.Constraint("DistanceX", 0, 2, -1, 1, Q("20.39697 mm")),
])
pocket5 = doc.addObject("PartDesign::Pocket", "Pocket004")
body.addObject(pocket5)
pocket5.Profile = sketch7
pocket5.Length = 10

doc.recompute()
